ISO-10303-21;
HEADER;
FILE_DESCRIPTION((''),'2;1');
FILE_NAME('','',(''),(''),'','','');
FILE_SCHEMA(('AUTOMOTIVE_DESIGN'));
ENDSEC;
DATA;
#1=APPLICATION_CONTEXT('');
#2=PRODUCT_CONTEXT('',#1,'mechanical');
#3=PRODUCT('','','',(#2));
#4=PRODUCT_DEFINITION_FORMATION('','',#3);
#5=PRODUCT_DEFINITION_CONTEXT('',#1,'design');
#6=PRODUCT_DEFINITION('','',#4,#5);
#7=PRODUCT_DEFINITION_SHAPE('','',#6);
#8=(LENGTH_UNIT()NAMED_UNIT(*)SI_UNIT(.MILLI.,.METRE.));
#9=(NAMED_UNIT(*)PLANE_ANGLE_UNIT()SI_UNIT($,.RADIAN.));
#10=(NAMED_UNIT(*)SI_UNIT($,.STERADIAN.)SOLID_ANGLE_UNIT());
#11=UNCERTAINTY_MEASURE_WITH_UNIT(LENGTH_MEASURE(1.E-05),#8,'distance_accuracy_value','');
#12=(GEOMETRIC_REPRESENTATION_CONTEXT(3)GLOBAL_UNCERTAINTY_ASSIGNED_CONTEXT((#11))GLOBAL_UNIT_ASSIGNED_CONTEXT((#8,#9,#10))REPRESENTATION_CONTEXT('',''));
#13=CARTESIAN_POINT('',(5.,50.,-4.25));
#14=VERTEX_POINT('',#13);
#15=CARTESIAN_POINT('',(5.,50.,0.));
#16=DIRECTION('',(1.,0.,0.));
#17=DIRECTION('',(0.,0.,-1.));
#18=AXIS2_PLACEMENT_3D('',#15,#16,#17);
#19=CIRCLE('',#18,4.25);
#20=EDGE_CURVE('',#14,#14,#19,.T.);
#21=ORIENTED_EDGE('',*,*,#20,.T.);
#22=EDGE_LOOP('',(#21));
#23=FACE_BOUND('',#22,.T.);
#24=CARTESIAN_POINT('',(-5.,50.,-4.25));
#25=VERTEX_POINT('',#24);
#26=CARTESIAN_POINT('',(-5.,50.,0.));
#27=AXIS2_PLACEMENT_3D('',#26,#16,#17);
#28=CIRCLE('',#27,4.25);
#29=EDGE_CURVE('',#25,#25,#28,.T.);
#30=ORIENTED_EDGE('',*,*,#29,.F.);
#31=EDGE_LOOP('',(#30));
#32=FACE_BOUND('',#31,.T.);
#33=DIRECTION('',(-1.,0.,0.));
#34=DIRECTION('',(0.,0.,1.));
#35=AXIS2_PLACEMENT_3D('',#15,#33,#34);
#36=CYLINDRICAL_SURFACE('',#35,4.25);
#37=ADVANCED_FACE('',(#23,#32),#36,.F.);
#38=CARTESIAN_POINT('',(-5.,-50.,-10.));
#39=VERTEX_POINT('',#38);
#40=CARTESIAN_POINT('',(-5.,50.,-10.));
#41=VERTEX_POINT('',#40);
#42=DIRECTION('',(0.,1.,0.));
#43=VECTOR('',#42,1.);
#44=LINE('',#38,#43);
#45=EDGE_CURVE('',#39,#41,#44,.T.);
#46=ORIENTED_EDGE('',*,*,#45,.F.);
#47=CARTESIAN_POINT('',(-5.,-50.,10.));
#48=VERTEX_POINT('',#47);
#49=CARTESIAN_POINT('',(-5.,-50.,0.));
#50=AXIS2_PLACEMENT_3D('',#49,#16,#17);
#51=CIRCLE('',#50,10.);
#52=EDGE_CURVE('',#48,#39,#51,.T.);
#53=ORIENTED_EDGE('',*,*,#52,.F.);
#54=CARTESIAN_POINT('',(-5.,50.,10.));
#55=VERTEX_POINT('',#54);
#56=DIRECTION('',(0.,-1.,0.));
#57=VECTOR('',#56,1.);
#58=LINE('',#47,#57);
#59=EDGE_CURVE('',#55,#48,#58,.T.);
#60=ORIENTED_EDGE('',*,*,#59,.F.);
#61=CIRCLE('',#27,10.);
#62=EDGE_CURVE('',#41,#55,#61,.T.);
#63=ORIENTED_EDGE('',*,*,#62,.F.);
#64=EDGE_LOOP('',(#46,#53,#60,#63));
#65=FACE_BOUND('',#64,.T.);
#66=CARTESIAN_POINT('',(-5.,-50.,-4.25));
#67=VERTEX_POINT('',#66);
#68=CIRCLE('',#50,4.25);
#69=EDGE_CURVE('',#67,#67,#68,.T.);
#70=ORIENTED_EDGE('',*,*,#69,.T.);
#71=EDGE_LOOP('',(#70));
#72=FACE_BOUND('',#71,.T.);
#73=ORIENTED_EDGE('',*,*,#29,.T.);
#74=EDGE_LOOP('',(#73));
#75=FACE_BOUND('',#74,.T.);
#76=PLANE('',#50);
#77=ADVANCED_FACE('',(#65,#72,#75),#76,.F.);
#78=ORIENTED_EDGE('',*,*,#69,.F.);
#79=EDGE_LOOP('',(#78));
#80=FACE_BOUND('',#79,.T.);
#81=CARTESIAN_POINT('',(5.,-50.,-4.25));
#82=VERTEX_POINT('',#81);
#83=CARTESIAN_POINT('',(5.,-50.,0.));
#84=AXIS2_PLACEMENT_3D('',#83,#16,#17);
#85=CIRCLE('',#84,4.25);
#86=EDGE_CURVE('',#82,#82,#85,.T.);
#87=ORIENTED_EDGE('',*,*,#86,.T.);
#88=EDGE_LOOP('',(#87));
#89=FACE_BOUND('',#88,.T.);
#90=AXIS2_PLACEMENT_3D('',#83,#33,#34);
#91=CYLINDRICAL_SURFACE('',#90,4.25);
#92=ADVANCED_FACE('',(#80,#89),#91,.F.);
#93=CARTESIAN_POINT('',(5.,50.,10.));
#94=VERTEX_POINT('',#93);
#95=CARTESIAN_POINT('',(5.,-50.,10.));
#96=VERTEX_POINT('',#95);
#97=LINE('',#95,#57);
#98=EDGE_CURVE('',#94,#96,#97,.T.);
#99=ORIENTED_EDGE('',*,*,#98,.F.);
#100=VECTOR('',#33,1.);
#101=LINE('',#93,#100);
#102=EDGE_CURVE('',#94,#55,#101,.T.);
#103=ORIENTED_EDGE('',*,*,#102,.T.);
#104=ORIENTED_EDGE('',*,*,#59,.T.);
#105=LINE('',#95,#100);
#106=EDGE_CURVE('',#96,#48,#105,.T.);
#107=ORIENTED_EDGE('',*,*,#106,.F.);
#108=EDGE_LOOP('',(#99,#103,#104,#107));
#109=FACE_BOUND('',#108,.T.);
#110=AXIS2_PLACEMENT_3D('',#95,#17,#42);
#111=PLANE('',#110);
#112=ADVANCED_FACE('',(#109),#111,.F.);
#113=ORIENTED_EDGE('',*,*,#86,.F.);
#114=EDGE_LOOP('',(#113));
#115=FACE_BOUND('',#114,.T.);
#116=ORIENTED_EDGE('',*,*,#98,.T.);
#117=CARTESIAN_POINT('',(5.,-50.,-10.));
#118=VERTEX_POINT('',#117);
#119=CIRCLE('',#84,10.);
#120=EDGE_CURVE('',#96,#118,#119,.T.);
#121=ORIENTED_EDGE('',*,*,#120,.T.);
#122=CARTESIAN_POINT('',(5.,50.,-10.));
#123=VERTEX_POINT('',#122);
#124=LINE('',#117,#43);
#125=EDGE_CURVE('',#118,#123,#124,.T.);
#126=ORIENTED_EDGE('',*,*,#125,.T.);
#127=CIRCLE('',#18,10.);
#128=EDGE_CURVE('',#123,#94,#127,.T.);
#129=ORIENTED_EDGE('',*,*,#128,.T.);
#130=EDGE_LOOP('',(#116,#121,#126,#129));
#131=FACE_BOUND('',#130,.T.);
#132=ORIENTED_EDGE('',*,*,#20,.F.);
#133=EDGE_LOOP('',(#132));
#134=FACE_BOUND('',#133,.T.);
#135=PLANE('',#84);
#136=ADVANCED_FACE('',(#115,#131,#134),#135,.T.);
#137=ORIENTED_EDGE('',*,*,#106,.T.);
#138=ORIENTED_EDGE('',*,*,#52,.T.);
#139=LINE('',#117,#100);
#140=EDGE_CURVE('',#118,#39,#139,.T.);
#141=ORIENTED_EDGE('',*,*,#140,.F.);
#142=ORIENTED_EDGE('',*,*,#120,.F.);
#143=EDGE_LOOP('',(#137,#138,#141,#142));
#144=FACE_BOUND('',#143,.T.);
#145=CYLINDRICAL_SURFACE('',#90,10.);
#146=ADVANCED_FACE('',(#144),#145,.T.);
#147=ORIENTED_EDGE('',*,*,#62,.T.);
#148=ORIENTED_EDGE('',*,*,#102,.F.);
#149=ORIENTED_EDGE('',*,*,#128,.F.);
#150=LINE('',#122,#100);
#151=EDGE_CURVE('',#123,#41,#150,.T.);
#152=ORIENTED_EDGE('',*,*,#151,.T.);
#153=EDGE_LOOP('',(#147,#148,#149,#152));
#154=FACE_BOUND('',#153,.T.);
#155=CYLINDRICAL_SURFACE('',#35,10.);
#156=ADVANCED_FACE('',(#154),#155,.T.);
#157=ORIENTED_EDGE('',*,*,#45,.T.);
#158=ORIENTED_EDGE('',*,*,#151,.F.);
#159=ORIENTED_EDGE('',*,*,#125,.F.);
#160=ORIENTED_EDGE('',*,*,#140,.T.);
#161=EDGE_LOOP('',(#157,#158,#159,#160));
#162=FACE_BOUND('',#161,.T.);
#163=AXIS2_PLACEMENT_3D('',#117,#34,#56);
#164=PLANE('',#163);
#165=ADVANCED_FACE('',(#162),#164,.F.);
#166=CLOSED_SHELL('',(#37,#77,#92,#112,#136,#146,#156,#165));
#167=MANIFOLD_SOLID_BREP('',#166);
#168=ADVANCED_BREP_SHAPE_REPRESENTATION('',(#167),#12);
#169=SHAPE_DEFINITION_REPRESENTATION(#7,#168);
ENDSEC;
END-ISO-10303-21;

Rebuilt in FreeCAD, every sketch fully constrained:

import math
import FreeCAD as App
import Part
import Sketcher

V = App.Vector

doc = App.newDocument("Part")
body = doc.addObject("PartDesign::Body", "Body")

# Sketch on YZ plane
sketch1 = body.newObject("Sketcher::SketchObject", "Sketch")
sketch1.AttachmentSupport = (doc.getObject("YZ_Plane"), [""])
sketch1.MapMode = "FlatFace"
sketch1.addGeometry(Part.LineSegment(V(50, 10, 0), V(-50, 10, 0)), False)
sketch1.addGeometry(Part.ArcOfCircle(Part.Circle(V(-50, 0, 0), V(0, 0, 1), 10), math.radians(90), math.radians(270)), False)
sketch1.addGeometry(Part.LineSegment(V(-50, -10, 0), V(50, -10, 0)), False)
sketch1.addGeometry(Part.ArcOfCircle(Part.Circle(V(50, 0, 0), V(0, 0, 1), 10), math.radians(-90), math.radians(90)), False)
sketch1.addGeometry(Part.Circle(V(-50, 0, 0), V(0, 0, 1), 4.25), False)
sketch1.addGeometry(Part.Circle(V(50, 0, 0), V(0, 0, 1), 4.25), False)
sketch1.addConstraint(Sketcher.Constraint("Tangent", 0, 2, 1, 1))
sketch1.addConstraint(Sketcher.Constraint("Tangent", 1, 2, 2, 1))
sketch1.addConstraint(Sketcher.Constraint("Tangent", 2, 2, 3, 1))
sketch1.addConstraint(Sketcher.Constraint("Tangent", 3, 2, 0, 1))
sketch1.addConstraint(Sketcher.Constraint("Horizontal", 0))
sketch1.addConstraint(Sketcher.Constraint("Horizontal", 2))
sketch1.addConstraint(Sketcher.Constraint("Coincident", 4, 3, 1, 3))
sketch1.addConstraint(Sketcher.Constraint("Coincident", 5, 3, 3, 3))
sketch1.addConstraint(Sketcher.Constraint("Equal", 4, 5))
sketch1.addConstraint(Sketcher.Constraint("Symmetric", 1, 3, 3, 3, -1, 1))
sketch1.addConstraint(Sketcher.Constraint("Radius", 1, 10.0))
sketch1.addConstraint(Sketcher.Constraint("Diameter", 4, 8.5))
sketch1.addConstraint(Sketcher.Constraint("DistanceX", 0, 2, 0, 1, 100.0))
pad1 = body.newObject("PartDesign::Pad", "Pad")
pad1.Profile = sketch1
pad1.Length = 10
pad1.Midplane = True

doc.recompute()
